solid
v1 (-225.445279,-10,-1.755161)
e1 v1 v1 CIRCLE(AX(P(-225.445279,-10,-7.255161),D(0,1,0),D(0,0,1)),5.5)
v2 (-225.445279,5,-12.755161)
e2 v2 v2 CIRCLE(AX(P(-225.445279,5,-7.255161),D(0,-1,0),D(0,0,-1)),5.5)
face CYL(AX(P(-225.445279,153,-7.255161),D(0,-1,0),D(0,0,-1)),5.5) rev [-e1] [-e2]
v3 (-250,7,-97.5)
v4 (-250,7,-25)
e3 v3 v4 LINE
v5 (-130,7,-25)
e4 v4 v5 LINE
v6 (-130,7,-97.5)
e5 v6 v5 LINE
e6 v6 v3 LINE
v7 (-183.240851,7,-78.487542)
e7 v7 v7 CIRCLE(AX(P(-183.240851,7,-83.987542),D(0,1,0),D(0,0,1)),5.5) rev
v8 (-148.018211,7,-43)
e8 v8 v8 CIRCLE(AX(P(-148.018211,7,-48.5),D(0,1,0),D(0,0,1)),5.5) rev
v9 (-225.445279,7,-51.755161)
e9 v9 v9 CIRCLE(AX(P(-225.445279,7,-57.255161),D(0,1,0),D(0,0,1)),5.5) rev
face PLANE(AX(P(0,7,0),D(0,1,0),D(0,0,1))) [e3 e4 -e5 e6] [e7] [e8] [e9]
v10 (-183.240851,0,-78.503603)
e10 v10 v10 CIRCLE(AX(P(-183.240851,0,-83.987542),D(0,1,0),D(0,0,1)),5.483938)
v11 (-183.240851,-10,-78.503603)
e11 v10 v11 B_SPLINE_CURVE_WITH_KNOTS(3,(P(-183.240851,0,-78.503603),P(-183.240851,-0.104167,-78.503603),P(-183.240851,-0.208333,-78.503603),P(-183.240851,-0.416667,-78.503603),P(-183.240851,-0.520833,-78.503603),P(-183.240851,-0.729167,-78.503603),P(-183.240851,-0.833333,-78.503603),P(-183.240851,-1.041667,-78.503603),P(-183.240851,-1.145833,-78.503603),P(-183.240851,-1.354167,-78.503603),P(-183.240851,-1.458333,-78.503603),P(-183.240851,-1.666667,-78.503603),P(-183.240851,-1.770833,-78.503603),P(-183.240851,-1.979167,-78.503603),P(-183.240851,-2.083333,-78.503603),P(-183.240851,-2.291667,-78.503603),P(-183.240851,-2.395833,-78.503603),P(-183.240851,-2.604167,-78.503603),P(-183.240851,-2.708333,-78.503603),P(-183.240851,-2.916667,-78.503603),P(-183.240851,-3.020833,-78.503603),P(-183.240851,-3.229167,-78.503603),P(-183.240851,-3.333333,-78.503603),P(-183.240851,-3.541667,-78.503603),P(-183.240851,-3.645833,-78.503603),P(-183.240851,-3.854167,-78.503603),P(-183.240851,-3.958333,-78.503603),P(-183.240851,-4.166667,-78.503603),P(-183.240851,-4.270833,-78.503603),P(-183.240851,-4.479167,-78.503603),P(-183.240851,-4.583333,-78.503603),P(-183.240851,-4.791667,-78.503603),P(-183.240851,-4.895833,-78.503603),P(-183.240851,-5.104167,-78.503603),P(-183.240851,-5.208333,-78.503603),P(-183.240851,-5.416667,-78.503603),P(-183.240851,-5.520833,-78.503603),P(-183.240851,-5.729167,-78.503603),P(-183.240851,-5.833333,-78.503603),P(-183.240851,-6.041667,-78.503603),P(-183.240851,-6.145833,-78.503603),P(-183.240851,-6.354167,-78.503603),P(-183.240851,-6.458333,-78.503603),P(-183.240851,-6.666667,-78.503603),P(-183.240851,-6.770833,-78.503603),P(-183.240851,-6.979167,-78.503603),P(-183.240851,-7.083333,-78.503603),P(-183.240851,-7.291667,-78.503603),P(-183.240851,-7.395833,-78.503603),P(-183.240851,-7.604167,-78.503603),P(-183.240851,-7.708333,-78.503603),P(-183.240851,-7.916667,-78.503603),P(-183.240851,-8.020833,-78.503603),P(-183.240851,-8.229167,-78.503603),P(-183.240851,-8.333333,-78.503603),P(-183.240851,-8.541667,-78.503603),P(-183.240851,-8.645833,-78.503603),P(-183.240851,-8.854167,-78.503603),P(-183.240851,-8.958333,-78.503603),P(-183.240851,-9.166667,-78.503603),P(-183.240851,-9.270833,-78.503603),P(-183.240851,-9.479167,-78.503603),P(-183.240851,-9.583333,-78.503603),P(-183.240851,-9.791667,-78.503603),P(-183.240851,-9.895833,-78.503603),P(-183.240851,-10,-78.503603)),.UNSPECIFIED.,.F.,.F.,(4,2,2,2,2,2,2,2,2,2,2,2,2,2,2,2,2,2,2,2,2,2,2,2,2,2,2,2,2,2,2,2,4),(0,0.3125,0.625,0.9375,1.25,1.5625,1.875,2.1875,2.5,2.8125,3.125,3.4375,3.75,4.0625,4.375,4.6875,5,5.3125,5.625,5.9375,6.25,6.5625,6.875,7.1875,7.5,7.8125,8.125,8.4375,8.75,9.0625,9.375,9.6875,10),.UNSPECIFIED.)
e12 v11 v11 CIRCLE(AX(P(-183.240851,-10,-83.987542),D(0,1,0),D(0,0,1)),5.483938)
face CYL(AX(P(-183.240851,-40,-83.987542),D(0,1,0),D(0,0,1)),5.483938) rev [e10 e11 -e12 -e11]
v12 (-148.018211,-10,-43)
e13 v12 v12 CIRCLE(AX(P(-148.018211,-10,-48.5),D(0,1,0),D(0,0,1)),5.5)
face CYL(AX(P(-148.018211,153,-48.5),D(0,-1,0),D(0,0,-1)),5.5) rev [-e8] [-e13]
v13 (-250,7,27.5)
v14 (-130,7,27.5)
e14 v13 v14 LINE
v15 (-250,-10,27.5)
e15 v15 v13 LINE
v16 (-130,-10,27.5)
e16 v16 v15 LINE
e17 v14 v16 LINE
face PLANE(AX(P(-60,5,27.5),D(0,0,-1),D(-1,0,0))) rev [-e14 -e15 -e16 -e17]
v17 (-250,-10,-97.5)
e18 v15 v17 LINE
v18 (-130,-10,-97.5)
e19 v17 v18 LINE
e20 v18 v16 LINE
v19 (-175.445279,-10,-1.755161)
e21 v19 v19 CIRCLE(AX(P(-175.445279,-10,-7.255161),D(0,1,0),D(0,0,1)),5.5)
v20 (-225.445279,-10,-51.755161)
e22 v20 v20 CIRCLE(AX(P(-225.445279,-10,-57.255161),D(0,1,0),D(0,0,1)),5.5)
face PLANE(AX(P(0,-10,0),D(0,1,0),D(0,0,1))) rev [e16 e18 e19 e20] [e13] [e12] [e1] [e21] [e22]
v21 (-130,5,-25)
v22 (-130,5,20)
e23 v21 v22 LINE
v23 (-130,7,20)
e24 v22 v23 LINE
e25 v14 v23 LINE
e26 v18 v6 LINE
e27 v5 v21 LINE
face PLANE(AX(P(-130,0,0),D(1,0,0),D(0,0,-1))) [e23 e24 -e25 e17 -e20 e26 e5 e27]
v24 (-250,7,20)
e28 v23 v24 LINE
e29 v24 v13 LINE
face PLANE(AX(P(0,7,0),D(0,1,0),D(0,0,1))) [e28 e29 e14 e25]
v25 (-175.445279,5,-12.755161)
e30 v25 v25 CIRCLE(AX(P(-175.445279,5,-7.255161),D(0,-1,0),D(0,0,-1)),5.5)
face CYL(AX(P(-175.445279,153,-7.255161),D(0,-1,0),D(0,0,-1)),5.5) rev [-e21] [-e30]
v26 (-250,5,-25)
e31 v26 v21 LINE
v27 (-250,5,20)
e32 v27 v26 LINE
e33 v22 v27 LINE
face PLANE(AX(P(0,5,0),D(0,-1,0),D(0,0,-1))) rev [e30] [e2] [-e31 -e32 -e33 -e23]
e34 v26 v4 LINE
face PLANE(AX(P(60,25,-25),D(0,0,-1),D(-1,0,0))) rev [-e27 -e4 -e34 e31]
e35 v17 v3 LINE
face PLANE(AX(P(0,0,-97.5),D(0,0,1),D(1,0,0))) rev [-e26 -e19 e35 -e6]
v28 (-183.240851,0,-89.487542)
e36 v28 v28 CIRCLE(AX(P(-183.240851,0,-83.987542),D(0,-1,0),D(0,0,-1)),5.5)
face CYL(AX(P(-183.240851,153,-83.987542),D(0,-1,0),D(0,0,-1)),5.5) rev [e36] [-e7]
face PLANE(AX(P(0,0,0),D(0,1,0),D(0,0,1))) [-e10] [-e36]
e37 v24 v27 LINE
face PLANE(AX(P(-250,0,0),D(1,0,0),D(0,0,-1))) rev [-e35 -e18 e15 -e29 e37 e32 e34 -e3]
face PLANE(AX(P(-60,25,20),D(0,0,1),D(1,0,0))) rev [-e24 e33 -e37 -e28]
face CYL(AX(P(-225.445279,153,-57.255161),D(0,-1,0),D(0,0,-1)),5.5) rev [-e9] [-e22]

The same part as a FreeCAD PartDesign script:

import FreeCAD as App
import Part
import Sketcher

doc = App.newDocument("Part")
body = doc.addObject("PartDesign::Body", "Body")

sketch1 = body.newObject("Sketcher::SketchObject", "Sketch")
sketch1.AttachmentSupport = (doc.getObject("XZ_Plane"), [""])
sketch1.MapMode = "FlatFace"
sketch1.addGeometry([
    Part.LineSegment(App.Vector(-60, -28, 0), App.Vector(-60, 28, 0)),
    Part.LineSegment(App.Vector(-60, 28, 0), App.Vector(60, 28, 0)),
    Part.LineSegment(App.Vector(60, 28, 0), App.Vector(60, -28, 0)),
    Part.LineSegment(App.Vector(60, -28, 0), App.Vector(-60, -28, 0)),
], False)
sketch1.addConstraint([
    Sketcher.Constraint("Coincident", 0, 2, 1, 1),
    Sketcher.Constraint("Coincident", 1, 2, 2, 1),
    Sketcher.Constraint("Coincident", 2, 2, 3, 1),
    Sketcher.Constraint("Coincident", 3, 2, 0, 1),
    Sketcher.Constraint("Vertical", 0),
    Sketcher.Constraint("Horizontal", 1),
    Sketcher.Constraint("Vertical", 2),
    Sketcher.Constraint("Horizontal", 3),
    Sketcher.Constraint("Symmetric", 0, 2, 2, 2, -1, 1),
    Sketcher.Constraint("DistanceX", 1, 1, 1, 2, 120.0),
    Sketcher.Constraint("DistanceY", 0, 1, 0, 2, 55.0),
])
pad1 = body.newObject("PartDesign::Pad", "Pad")
pad1.Profile = sketch1
pad1.Length = 5
pad1.Reversed = True

sketch2 = body.newObject("Sketcher::SketchObject", "Sketch001")
sketch2.AttachmentSupport = (doc.getObject("XZ_Plane"), [""])
sketch2.MapMode = "FlatFace"
sketch2.AttachmentOffset = App.Placement(App.Vector(0, 0, -5), App.Rotation())
sketch2.addGeometry([
    Part.LineSegment(App.Vector(-60, 20, 0), App.Vector(-60, 28, 0)),
    Part.LineSegment(App.Vector(-60, 28, 0), App.Vector(60, 28, 0)),
    Part.LineSegment(App.Vector(60, 28, 0), App.Vector(60, 20, 0)),
    Part.LineSegment(App.Vector(60, 20, 0), App.Vector(-60, 20, 0)),
], False)
sketch2.addConstraint([
    Sketcher.Constraint("Coincident", 0, 2, 1, 1),
    Sketcher.Constraint("Coincident", 1, 2, 2, 1),
    Sketcher.Constraint("Coincident", 2, 2, 3, 1),
    Sketcher.Constraint("Coincident", 3, 2, 0, 1),
    Sketcher.Constraint("Vertical", 0),
    Sketcher.Constraint("Horizontal", 1),
    Sketcher.Constraint("Vertical", 2),
    Sketcher.Constraint("Horizontal", 3),
    Sketcher.Constraint("DistanceX", 1, 1, 1, 2, 120.0),
    Sketcher.Constraint("DistanceY", 0, 1, 0, 2, 7.5),
    Sketcher.Constraint("DistanceX", 0, 2, -1, 1, 60.0),
    Sketcher.Constraint("DistanceY", -1, 1, 2, 2, 20.0),
])
pad2 = body.newObject("PartDesign::Pad", "Pad001")
pad2.Profile = sketch2
pad2.Length = 20
pad2.Reversed = True

sketch3 = body.newObject("Sketcher::SketchObject", "Sketch002")
sketch3.AttachmentSupport = (doc.getObject("XZ_Plane"), [""])
sketch3.MapMode = "FlatFace"
sketch3.AttachmentOffset = App.Placement(App.Vector(0, 0, -5), App.Rotation())
sketch3.addGeometry([
    Part.LineSegment(App.Vector(-60, -27.5, 0), App.Vector(-60, -25, 0)),
    Part.LineSegment(App.Vector(-60, -25, 0), App.Vector(60, -25, 0)),
    Part.LineSegment(App.Vector(60, -25, 0), App.Vector(60, -27.5, 0)),
    Part.LineSegment(App.Vector(60, -27.5, 0), App.Vector(-60, -27.5, 0)),
], False)
sketch3.addConstraint([
    Sketcher.Constraint("Coincident", 0, 2, 1, 1),
    Sketcher.Constraint("Coincident", 1, 2, 2, 1),
    Sketcher.Constraint("Coincident", 2, 2, 3, 1),
    Sketcher.Constraint("Coincident", 3, 2, 0, 1),
    Sketcher.Constraint("Vertical", 0),
    Sketcher.Constraint("Horizontal", 1),
    Sketcher.Constraint("Vertical", 2),
    Sketcher.Constraint("Horizontal", 3),
    Sketcher.Constraint("DistanceX", 1, 1, 1, 2, 120.0),
    Sketcher.Constraint("DistanceY", 0, 1, 0, 2, 2.5),
    Sketcher.Constraint("DistanceX", 0, 2, -1, 1, 60.0),
    Sketcher.Constraint("DistanceY", 0, 2, -1, 1, 25.0),
])
pad3 = body.newObject("PartDesign::Pad", "Pad002")
pad3.Profile = sketch3
pad3.Length = 20
pad3.Reversed = True

sketch4 = body.newObject("Sketcher::SketchObject", "Sketch003")
sketch4.AttachmentSupport = (doc.getObject("YZ_Plane"), [""])
sketch4.MapMode = "FlatFace"
sketch4.AttachmentOffset = App.Placement(App.Vector(0, 0, -60), App.Rotation())
sketch4.addGeometry([
    Part.LineSegment(App.Vector(25, -27.5, 0), App.Vector(0, -27.5, 0)),
    Part.LineSegment(App.Vector(0, -27.5, 0), App.Vector(0, 27.5, 0)),
    Part.LineSegment(App.Vector(0, 27.5, 0), App.Vector(25, 27.5, 0)),
    Part.LineSegment(App.Vector(25, 27.5, 0), App.Vector(25, 20, 0)),
    Part.LineSegment(App.Vector(25, 20, 0), App.Vector(5, 20, 0)),
    Part.LineSegment(App.Vector(5, 20, 0), App.Vector(5, -25, 0)),
    Part.LineSegment(App.Vector(5, -25, 0), App.Vector(25, -25, 0)),
    Part.LineSegment(App.Vector(25, -25, 0), App.Vector(25, -27.5, 0)),
], False)
sketch4.addConstraint([
    Sketcher.Constraint("Coincident", 0, 2, 1, 1),
    Sketcher.Constraint("Coincident", 1, 2, 2, 1),
    Sketcher.Constraint("Coincident", 2, 2, 3, 1),
    Sketcher.Constraint("Coincident", 3, 2, 4, 1),
    Sketcher.Constraint("Coincident", 4, 2, 5, 1),
    Sketcher.Constraint("Coincident", 5, 2, 6, 1),
    Sketcher.Constraint("Coincident", 6, 2, 7, 1),
    Sketcher.Constraint("Coincident", 7, 2, 0, 1),
    Sketcher.Constraint("Horizontal", 0),
    Sketcher.Constraint("Vertical", 1),
    Sketcher.Constraint("Horizontal", 2),
    Sketcher.Constraint("Vertical", 3),
    Sketcher.Constraint("Horizontal", 4),
    Sketcher.Constraint("Vertical", 5),
    Sketcher.Constraint("Horizontal", 6),
    Sketcher.Constraint("Vertical", 7),
    Sketcher.Constraint("Symmetric", 0, 2, 1, 2, -1, 1),
    Sketcher.Constraint("Vertical", 3, 2, 6, 2),
    Sketcher.Constraint("DistanceX", 0, 2, 0, 1, 25.0),
    Sketcher.Constraint("DistanceX", 4, 2, 4, 1, 20.0),
    Sketcher.Constraint("DistanceY", 1, 1, 1, 2, 55.0),
    Sketcher.Constraint("DistanceY", 5, 2, 5, 1, 45.0),
    Sketcher.Constraint("DistanceY", 3, 2, 3, 1, 7.5),
])
pad4 = body.newObject("PartDesign::Pad", "Pad003")
pad4.Profile = sketch4
pad4.Length = 190
pad4.Reversed = True

sketch5 = body.newObject("Sketcher::SketchObject", "Sketch004")
sketch5.AttachmentSupport = (doc.getObject("XY_Plane"), [""])
sketch5.MapMode = "FlatFace"
sketch5.AttachmentOffset = App.Placement(App.Vector(0, 0, -27.5), App.Rotation())
sketch5.addGeometry([
    Part.LineSegment(App.Vector(60, 25, 0), App.Vector(60, 0, 0)),
    Part.LineSegment(App.Vector(60, 0, 0), App.Vector(-250, 0, 0)),
    Part.LineSegment(App.Vector(-250, 0, 0), App.Vector(-250, 25, 0)),
    Part.LineSegment(App.Vector(-250, 25, 0), App.Vector(60, 25, 0)),
], False)
sketch5.addConstraint([
    Sketcher.Constraint("Coincident", 0, 2, 1, 1),
    Sketcher.Constraint("Coincident", 1, 2, 2, 1),
    Sketcher.Constraint("Coincident", 2, 2, 3, 1),
    Sketcher.Constraint("Coincident", 3, 2, 0, 1),
    Sketcher.Constraint("Vertical", 0),
    Sketcher.Constraint("Horizontal", 1),
    Sketcher.Constraint("Vertical", 2),
    Sketcher.Constraint("Horizontal", 3),
    Sketcher.Constraint("PointOnObject", 0, 2, -1),
    Sketcher.Constraint("DistanceX", 1, 2, 1, 1, 310.0),
    Sketcher.Constraint("DistanceY", 0, 2, 0, 1, 25.0),
    Sketcher.Constraint("DistanceX", -1, 1, 0, 2, 60.0),
])
pad5 = body.newObject("PartDesign::Pad", "Pad004")
pad5.Profile = sketch5
pad5.Length = 70
pad5.Reversed = True

sketch6 = body.newObject("Sketcher::SketchObject", "Sketch005")
sketch6.AttachmentSupport = (doc.getObject("XZ_Plane"), [""])
sketch6.MapMode = "FlatFace"
sketch6.addGeometry([
    Part.Circle(App.Vector(-225, -7, 0), App.Vector(0, 0, 1), 6),
    Part.Circle(App.Vector(-175, -7, 0), App.Vector(0, 0, 1), 6),
    Part.Circle(App.Vector(-225, -57, 0), App.Vector(0, 0, 1), 6),
    Part.Circle(App.Vector(-148, -48, 0), App.Vector(0, 0, 1), 6),
    Part.Circle(App.Vector(-183, -84, 0), App.Vector(0, 0, 1), 6),
], False)
sketch6.addConstraint([
    Sketcher.Constraint("Equal", 0, 1),
    Sketcher.Constraint("Equal", 1, 2),
    Sketcher.Constraint("Equal", 2, 3),
    Sketcher.Constraint("Equal", 3, 4),
    Sketcher.Constraint("Horizontal", 0, 3, 1, 3),
    Sketcher.Constraint("Vertical", 0, 3, 2, 3),
    Sketcher.Constraint("Diameter", 0, 11.0),
    Sketcher.Constraint("DistanceX", 0, 3, 1, 3, 50.0),
    Sketcher.Constraint("DistanceY", 2, 3, 0, 3, 50.0),
    Sketcher.Constraint("DistanceY", 3, 3, -1, 1, 48.5),
    Sketcher.Constraint("DistanceX", 0, 3, -1, 1, 225.445279),
    Sketcher.Constraint("DistanceY", 0, 3, -1, 1, 7.255161),
    Sketcher.Constraint("DistanceX", 3, 3, -1, 1, 148.018211),
    Sketcher.Constraint("DistanceX", 4, 3, -1, 1, 183.240851),
    Sketcher.Constraint("DistanceY", 4, 3, -1, 1, 83.987542),
])
pocket1 = body.newObject("PartDesign::Pocket", "Pocket")
pocket1.Profile = sketch6
pocket1.Length = 153

sketch7 = body.newObject("Sketcher::SketchObject", "Sketch006")
sketch7.AttachmentSupport = (doc.getObject("YZ_Plane"), [""])
sketch7.MapMode = "FlatFace"
sketch7.AttachmentOffset = App.Placement(App.Vector(0, 0, 60), App.Rotation())
sketch7.addGeometry([
    Part.LineSegment(App.Vector(25, 28, 0), App.Vector(0, 28, 0)),
    Part.LineSegment(App.Vector(0, 28, 0), App.Vector(0, -98, 0)),
    Part.LineSegment(App.Vector(0, -98, 0), App.Vector(25, -98, 0)),
    Part.LineSegment(App.Vector(25, -98, 0), App.Vector(25, 28, 0)),
], False)
sketch7.addConstraint([
    Sketcher.Constraint("Coincident", 0, 2, 1, 1),
    Sketcher.Constraint("Coincident", 1, 2, 2, 1),
    Sketcher.Constraint("Coincident", 2, 2, 3, 1),
    Sketcher.Constraint("Coincident", 3, 2, 0, 1),
    Sketcher.Constraint("Horizontal", 0),
    Sketcher.Constraint("Vertical", 1),
    Sketcher.Constraint("Horizontal", 2),
    Sketcher.Constraint("Vertical", 3),
    Sketcher.Constraint("PointOnObject", 0, 2, -2),
    Sketcher.Constraint("DistanceX", 0, 2, 0, 1, 25.0),
    Sketcher.Constraint("DistanceY", 1, 2, 1, 1, 125.0),
    Sketcher.Constraint("DistanceY", -1, 1, 0, 2, 27.5),
])
pocket2 = body.newObject("PartDesign::Pocket", "Pocket001")
pocket2.Profile = sketch7
pocket2.Length = 190

sketch8 = body.newObject("Sketcher::SketchObject", "Sketch007")
sketch8.AttachmentSupport = (doc.getObject("XZ_Plane"), [""])
sketch8.MapMode = "FlatFace"
sketch8.addGeometry([
    Part.LineSegment(App.Vector(-130, -98, 0), App.Vector(-130, 28, 0)),
    Part.LineSegment(App.Vector(-130, 28, 0), App.Vector(-250, 28, 0)),
    Part.LineSegment(App.Vector(-250, 28, 0), App.Vector(-250, -98, 0)),
    Part.LineSegment(App.Vector(-250, -98, 0), App.Vector(-130, -98, 0)),
], False)
sketch8.addConstraint([
    Sketcher.Constraint("Coincident", 0, 2, 1, 1),
    Sketcher.Constraint("Coincident", 1, 2, 2, 1),
    Sketcher.Constraint("Coincident", 2, 2, 3, 1),
    Sketcher.Constraint("Coincident", 3, 2, 0, 1),
    Sketcher.Constraint("Vertical", 0),
    Sketcher.Constraint("Horizontal", 1),
    Sketcher.Constraint("Vertical", 2),
    Sketcher.Constraint("Horizontal", 3),
    Sketcher.Constraint("DistanceX", 1, 2, 1, 1, 120.0),
    Sketcher.Constraint("DistanceY", 0, 1, 0, 2, 125.0),
    Sketcher.Constraint("DistanceX", 0, 2, -1, 1, 130.0),
    Sketcher.Constraint("DistanceY", -1, 1, 0, 2, 27.5),
])
pad6 = body.newObject("PartDesign::Pad", "Pad005")
pad6.Profile = sketch8
pad6.Length = 10

sketch9 = body.newObject("Sketcher::SketchObject", "Sketch008")
sketch9.AttachmentSupport = (doc.getObject("XZ_Plane"), [""])
sketch9.MapMode = "FlatFace"
sketch9.AttachmentOffset = App.Placement(App.Vector(0, 0, -25), App.Rotation())
sketch9.addGeometry([
    Part.LineSegment(App.Vector(-250, -98, 0), App.Vector(-250, 28, 0)),
    Part.LineSegment(App.Vector(-250, 28, 0), App.Vector(-130, 28, 0)),
    Part.LineSegment(App.Vector(-130, 28, 0), App.Vector(-130, -98, 0)),
    Part.LineSegment(App.Vector(-130, -98, 0), App.Vector(-250, -98, 0)),
], False)
sketch9.addConstraint([
    Sketcher.Constraint("Coincident", 0, 2, 1, 1),
    Sketcher.Constraint("Coincident", 1, 2, 2, 1),
    Sketcher.Constraint("Coincident", 2, 2, 3, 1),
    Sketcher.Constraint("Coincident", 3, 2, 0, 1),
    Sketcher.Constraint("Vertical", 0),
    Sketcher.Constraint("Horizontal", 1),
    Sketcher.Constraint("Vertical", 2),
    Sketcher.Constraint("Horizontal", 3),
    Sketcher.Constraint("DistanceX", 1, 1, 1, 2, 120.0),
    Sketcher.Constraint("DistanceY", 0, 1, 0, 2, 125.0),
    Sketcher.Constraint("DistanceX", 0, 2, -1, 1, 250.0),
    Sketcher.Constraint("DistanceY", -1, 1, 0, 2, 27.5),
])
pocket3 = body.newObject("PartDesign::Pocket", "Pocket002")
pocket3.Profile = sketch9
pocket3.Length = 18
pocket3.Reversed = True

sketch10 = body.newObject("Sketcher::SketchObject", "Sketch009")
sketch10.AttachmentSupport = (doc.getObject("XZ_Plane"), [""])
sketch10.MapMode = "FlatFace"
sketch10.AttachmentOffset = App.Placement(App.Vector(0, 0, 11), App.Rotation())
sketch10.addGeometry(Part.Circle(App.Vector(-148, -48, 0), App.Vector(0, 0, 1), 6), False)
sketch10.addConstraint([
    Sketcher.Constraint("Diameter", 0, 11.0),
    Sketcher.Constraint("DistanceY", 0, 3, -1, 1, 48.5),
    Sketcher.Constraint("DistanceX", 0, 3, -1, 1, 148.018211),
])
pocket4 = body.newObject("PartDesign::Pocket", "Pocket003")
pocket4.Profile = sketch10
pocket4.Length = 18

sketch11 = body.newObject("Sketcher::SketchObject", "Sketch010")
sketch11.AttachmentSupport = (doc.getObject("XZ_Plane"), [""])
sketch11.MapMode = "FlatFace"
sketch11.AttachmentOffset = App.Placement(App.Vector(0, 0, 40), App.Rotation())
sketch11.addGeometry([
    Part.Circle(App.Vector(-183, -84, 0), App.Vector(0, 0, 1), 5),
    Part.Circle(App.Vector(-225, -57, 0), App.Vector(0, 0, 1), 6),
], False)
sketch11.addConstraint([
    Sketcher.Constraint("Diameter", 1, 11.0),
    Sketcher.Constraint("Diameter", 0, 10.967877),
    Sketcher.Constraint("DistanceX", 0, 3, -1, 1, 183.240851),
    Sketcher.Constraint("DistanceY", 0, 3, -1, 1, 83.987542),
    Sketcher.Constraint("DistanceX", 1, 3, -1, 1, 225.445279),
    Sketcher.Constraint("DistanceY", 1, 3, -1, 1, 57.255161),
])
pocket5 = body.newObject("PartDesign::Pocket", "Pocket004")
pocket5.Profile = sketch11
pocket5.Length = 47

sketch12 = body.newObject("Sketcher::SketchObject", "Sketch011")
sketch12.AttachmentSupport = (doc.getObject("XZ_Plane"), [""])
sketch12.MapMode = "FlatFace"
sketch12.AttachmentOffset = App.Placement(App.Vector(0, 0, 42), App.Rotation())
sketch12.addGeometry(Part.Circle(App.Vector(-225, -7, 0), App.Vector(0, 0, 1), 6), False)
sketch12.addConstraint([
    Sketcher.Constraint("Diameter", 0, 11.0),
    Sketcher.Constraint("DistanceX", 0, 3, -1, 1, 225.445279),
    Sketcher.Constraint("DistanceY", 0, 3, -1, 1, 7.255161),
])
pocket6 = body.newObject("PartDesign::Pocket", "Pocket005")
pocket6.Profile = sketch12
pocket6.Length = 47

sketch13 = body.newObject("Sketcher::SketchObject", "Sketch012")
sketch13.AttachmentSupport = (doc.getObject("XZ_Plane"), [""])
sketch13.MapMode = "FlatFace"
sketch13.AttachmentOffset = App.Placement(App.Vector(0, 0, 42), App.Rotation())
sketch13.addGeometry(Part.Circle(App.Vector(-175, -7, 0), App.Vector(0, 0, 1), 6), False)
sketch13.addConstraint([
    Sketcher.Constraint("Diameter", 0, 11.0),
    Sketcher.Constraint("DistanceX", 0, 3, -1, 1, 175.445279),
    Sketcher.Constraint("DistanceY", 0, 3, -1, 1, 7.255161),
])
pocket7 = body.newObject("PartDesign::Pocket", "Pocket006")
pocket7.Profile = sketch13
pocket7.Length = 47

doc.recompute()
